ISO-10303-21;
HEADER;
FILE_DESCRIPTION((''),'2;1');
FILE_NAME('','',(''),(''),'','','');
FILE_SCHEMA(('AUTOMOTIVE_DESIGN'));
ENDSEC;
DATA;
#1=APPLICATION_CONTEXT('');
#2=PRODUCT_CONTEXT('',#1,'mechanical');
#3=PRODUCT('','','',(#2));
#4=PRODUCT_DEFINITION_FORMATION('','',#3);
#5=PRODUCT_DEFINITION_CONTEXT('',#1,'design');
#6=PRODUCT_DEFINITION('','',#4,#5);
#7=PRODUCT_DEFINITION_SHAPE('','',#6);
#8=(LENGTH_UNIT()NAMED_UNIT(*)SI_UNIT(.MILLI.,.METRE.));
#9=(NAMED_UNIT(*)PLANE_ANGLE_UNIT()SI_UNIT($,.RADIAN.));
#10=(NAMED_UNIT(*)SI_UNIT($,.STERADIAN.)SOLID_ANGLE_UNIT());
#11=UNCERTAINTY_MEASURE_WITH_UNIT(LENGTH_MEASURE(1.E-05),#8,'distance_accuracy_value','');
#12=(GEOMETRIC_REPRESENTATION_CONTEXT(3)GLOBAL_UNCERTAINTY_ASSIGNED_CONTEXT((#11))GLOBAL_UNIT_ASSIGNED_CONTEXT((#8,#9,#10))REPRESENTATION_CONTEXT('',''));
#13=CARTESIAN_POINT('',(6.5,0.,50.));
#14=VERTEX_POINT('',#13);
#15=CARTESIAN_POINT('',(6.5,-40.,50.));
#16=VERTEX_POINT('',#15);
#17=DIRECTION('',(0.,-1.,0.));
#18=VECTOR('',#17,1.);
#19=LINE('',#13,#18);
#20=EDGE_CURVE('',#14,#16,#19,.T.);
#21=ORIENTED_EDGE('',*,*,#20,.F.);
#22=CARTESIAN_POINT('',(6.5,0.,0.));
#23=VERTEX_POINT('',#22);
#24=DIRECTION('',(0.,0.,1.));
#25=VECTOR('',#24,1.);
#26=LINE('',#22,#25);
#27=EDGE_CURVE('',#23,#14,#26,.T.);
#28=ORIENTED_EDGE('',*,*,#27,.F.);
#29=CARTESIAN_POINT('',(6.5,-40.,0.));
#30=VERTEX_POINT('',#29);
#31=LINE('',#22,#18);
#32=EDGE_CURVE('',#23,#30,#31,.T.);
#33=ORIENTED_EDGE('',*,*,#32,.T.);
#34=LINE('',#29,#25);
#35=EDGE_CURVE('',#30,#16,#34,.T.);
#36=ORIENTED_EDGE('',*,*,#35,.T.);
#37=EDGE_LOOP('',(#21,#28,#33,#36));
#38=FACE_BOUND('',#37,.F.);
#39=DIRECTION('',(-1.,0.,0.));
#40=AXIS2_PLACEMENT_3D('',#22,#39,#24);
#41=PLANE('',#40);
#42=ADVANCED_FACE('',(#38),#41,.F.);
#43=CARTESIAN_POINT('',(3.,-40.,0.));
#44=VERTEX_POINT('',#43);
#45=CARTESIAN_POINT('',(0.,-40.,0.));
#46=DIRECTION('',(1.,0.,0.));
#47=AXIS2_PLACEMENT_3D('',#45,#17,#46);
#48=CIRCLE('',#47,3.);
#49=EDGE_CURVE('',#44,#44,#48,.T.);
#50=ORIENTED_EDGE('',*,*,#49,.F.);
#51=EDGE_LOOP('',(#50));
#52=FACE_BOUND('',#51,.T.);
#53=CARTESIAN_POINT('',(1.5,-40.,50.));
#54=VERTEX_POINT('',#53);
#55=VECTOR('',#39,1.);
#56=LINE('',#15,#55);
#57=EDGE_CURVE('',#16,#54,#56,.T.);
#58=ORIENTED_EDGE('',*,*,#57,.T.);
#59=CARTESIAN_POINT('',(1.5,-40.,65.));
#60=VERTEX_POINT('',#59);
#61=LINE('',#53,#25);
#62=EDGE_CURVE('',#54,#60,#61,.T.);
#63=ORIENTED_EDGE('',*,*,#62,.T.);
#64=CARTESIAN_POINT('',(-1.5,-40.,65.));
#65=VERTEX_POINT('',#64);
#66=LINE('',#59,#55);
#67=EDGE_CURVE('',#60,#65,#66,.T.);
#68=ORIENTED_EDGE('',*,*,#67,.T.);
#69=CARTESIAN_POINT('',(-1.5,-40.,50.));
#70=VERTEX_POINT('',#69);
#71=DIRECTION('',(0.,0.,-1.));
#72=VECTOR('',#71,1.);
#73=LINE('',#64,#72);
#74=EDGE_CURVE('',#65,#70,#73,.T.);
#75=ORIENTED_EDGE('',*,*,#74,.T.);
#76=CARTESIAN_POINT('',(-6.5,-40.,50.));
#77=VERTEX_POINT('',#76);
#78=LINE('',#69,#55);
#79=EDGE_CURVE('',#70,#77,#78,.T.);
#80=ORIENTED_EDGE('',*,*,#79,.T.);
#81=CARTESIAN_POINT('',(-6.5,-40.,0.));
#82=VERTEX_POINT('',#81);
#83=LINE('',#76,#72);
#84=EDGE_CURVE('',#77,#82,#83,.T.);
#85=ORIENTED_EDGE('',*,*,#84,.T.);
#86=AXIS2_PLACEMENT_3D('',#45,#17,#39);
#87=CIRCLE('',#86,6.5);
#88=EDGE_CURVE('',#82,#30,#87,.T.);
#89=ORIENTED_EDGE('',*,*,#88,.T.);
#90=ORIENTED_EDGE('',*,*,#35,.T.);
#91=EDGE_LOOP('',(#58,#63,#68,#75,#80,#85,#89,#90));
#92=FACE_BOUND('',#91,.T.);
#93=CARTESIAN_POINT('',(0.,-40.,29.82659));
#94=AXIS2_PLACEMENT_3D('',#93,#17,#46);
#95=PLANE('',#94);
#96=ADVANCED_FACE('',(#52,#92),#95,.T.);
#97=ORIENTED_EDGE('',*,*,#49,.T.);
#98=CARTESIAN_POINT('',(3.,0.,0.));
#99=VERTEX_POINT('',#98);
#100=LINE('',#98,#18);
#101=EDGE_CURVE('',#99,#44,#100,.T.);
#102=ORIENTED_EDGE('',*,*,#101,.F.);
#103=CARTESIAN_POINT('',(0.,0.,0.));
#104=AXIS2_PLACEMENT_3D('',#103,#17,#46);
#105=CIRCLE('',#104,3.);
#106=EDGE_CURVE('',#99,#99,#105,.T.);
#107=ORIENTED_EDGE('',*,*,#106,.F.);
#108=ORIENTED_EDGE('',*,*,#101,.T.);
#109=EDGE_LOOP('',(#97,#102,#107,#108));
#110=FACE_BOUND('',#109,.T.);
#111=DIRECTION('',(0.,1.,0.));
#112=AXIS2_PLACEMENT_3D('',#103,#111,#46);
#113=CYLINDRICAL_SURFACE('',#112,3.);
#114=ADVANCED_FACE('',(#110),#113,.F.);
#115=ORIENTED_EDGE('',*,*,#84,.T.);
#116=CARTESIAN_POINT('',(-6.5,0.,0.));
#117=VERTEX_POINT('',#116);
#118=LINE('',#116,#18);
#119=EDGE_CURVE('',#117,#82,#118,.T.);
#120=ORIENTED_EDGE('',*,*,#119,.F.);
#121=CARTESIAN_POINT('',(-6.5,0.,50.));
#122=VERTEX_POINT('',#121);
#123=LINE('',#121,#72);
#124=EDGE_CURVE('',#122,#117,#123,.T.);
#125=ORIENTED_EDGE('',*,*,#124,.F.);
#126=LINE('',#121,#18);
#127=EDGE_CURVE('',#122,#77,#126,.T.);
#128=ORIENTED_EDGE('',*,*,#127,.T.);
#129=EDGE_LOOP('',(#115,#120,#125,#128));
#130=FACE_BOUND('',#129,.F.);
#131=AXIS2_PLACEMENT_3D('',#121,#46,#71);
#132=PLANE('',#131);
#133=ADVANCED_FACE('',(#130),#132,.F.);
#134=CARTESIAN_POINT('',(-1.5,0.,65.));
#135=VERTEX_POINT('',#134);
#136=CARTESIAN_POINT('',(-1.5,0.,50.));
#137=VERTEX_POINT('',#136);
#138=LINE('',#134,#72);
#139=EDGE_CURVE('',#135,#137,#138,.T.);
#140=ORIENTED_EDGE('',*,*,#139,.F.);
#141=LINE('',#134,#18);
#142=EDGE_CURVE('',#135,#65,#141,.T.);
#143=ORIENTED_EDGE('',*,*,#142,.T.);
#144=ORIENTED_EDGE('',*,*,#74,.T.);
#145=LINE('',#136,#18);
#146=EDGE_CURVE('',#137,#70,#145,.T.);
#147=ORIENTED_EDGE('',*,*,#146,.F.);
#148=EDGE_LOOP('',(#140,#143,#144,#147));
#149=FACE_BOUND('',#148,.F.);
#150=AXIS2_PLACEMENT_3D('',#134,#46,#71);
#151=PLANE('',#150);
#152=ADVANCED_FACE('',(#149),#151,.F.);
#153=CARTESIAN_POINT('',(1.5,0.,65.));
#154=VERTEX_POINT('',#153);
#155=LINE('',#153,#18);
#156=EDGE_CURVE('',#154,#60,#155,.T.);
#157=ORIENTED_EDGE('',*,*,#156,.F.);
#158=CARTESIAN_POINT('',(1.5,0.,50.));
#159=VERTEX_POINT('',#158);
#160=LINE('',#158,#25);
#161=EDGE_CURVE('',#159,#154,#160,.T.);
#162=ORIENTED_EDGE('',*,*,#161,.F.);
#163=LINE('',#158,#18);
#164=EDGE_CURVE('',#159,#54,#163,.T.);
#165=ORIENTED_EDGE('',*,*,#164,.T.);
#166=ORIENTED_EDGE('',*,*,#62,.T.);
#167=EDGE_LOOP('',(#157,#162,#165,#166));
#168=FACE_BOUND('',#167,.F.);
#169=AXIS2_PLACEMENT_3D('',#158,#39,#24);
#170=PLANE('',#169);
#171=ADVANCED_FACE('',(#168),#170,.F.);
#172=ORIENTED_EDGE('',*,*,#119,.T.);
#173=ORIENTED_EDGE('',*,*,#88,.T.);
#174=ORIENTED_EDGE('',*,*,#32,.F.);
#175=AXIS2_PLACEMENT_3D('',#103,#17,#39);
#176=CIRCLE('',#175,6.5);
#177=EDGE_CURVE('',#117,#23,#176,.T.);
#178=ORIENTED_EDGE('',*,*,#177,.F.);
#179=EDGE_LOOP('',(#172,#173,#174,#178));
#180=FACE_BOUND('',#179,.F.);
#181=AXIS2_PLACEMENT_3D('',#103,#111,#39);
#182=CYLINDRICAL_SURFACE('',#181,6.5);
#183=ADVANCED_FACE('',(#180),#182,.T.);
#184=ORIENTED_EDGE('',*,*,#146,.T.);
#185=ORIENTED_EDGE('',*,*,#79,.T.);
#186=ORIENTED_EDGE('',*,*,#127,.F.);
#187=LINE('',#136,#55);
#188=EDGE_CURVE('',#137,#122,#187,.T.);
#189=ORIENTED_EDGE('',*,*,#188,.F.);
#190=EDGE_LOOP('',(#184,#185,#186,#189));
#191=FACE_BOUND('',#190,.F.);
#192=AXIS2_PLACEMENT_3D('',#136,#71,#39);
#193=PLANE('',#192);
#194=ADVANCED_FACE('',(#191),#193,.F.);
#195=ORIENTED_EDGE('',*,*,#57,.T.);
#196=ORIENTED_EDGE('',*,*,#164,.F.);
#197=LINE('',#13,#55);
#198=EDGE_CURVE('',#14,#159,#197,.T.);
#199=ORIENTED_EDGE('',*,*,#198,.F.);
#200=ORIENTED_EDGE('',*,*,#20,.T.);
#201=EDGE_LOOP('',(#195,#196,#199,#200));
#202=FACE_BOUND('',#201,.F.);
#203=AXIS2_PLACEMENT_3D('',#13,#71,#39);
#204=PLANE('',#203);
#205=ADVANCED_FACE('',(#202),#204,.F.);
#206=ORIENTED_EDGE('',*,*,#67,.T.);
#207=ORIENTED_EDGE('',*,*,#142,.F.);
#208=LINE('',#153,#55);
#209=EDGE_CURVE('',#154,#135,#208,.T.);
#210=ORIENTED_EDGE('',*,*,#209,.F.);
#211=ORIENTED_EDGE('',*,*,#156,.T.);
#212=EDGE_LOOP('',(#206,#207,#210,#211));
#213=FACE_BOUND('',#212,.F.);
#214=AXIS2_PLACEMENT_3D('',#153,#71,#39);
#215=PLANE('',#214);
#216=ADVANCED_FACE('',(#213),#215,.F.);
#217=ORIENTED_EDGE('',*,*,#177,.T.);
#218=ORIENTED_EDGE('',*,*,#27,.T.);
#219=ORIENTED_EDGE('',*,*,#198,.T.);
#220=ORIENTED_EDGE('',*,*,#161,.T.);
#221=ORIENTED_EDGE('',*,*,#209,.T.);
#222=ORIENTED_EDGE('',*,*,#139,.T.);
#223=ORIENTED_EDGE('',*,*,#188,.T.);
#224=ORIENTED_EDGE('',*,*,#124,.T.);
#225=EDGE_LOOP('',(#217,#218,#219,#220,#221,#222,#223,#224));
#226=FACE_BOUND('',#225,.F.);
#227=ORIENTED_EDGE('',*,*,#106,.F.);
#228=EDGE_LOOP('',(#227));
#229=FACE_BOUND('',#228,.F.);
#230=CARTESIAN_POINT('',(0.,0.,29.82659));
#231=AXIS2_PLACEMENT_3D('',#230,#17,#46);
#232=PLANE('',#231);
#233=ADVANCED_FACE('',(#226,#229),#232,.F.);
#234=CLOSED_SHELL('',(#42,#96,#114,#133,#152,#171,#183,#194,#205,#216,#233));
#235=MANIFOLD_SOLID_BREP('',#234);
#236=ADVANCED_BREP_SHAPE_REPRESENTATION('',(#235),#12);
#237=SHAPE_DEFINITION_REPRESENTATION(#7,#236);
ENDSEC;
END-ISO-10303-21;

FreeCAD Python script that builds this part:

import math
import FreeCAD as App
import Part
import Sketcher

V = App.Vector
Q = App.Units.Quantity

doc = App.newDocument("Part")
params = doc.addObject("Spreadsheet::Sheet", "Params")
for row, (alias, value) in enumerate([
    ("sketch1_diameter", "6 mm"),
    ("sketch1_radius", "6.5 mm"),
    ("sketch1_width", "5 mm"),
    ("sketch1_height", "50 mm"),
    ("sketch1_height2", "15 mm"),
    ("pad1_length", "40 mm"),
], start=1):
    params.set(f"A{row}", alias)
    params.set(f"B{row}", "=" + value)
    params.setAlias(f"B{row}", alias)

body = doc.addObject("PartDesign::Body", "Body")

# Sketch on XZ plane
sketch1 = doc.addObject("Sketcher::SketchObject", "Sketch")
body.addObject(sketch1)
sketch1.AttachmentSupport = (doc.XZ_Plane, [""])
sketch1.MapMode = "FlatFace"
sketch1.addGeometry(Part.LineSegment(V(-6.5, 50, 0), V(-6.5, 0, 0)), False)
sketch1.addGeometry(Part.ArcOfCircle(Part.Circle(V(0, 0, 0), V(0, 0, 1), 6.5), math.radians(180), math.radians(360)), False)
sketch1.addGeometry(Part.LineSegment(V(6.5, 0, 0), V(6.5, 50, 0)), False)
sketch1.addGeometry(Part.LineSegment(V(6.5, 50, 0), V(1.5, 50, 0)), False)
sketch1.addGeometry(Part.LineSegment(V(1.5, 50, 0), V(1.5, 65, 0)), False)
sketch1.addGeometry(Part.LineSegment(V(1.5, 65, 0), V(-1.5, 65, 0)), False)
sketch1.addGeometry(Part.LineSegment(V(-1.5, 65, 0), V(-1.5, 50, 0)), False)
sketch1.addGeometry(Part.LineSegment(V(-1.5, 50, 0), V(-6.5, 50, 0)), False)
sketch1.addGeometry(Part.Circle(V(0, 0, 0), V(0, 0, 1), 3), False)
sketch1.addConstraint(Sketcher.Constraint("Tangent", 0, 2, 1, 1))
sketch1.addConstraint(Sketcher.Constraint("Tangent", 1, 2, 2, 1))
sketch1.addConstraint(Sketcher.Constraint("Coincident", 2, 2, 3, 1))
sketch1.addConstraint(Sketcher.Constraint("Coincident", 3, 2, 4, 1))
sketch1.addConstraint(Sketcher.Constraint("Coincident", 4, 2, 5, 1))
sketch1.addConstraint(Sketcher.Constraint("Coincident", 5, 2, 6, 1))
sketch1.addConstraint(Sketcher.Constraint("Coincident", 6, 2, 7, 1))
sketch1.addConstraint(Sketcher.Constraint("Coincident", 7, 2, 0, 1))
sketch1.addConstraint(Sketcher.Constraint("Vertical", 0))
sketch1.addConstraint(Sketcher.Constraint("Vertical", 2))
sketch1.addConstraint(Sketcher.Constraint("Horizontal", 3))
sketch1.addConstraint(Sketcher.Constraint("Vertical", 4))
sketch1.addConstraint(Sketcher.Constraint("Horizontal", 5))
sketch1.addConstraint(Sketcher.Constraint("Vertical", 6))
sketch1.addConstraint(Sketcher.Constraint("Horizontal", 7))
sketch1.addConstraint(Sketcher.Constraint("Coincident", 1, 3, -1, 1))
sketch1.addConstraint(Sketcher.Constraint("Coincident", 8, 3, -1, 1))
sketch1.addConstraint(Sketcher.Constraint("Symmetric", 3, 2, 6, 2, -2))
sketch1.addConstraint(Sketcher.Constraint("Diameter", 8, Q("6 mm")))
sketch1.addConstraint(Sketcher.Constraint("Radius", 1, Q("6.5 mm")))
sketch1.addConstraint(Sketcher.Constraint("DistanceX", 3, 2, 3, 1, Q("5 mm")))
sketch1.addConstraint(Sketcher.Constraint("DistanceY", 0, 2, 0, 1, Q("50 mm")))
sketch1.addConstraint(Sketcher.Constraint("DistanceY", 4, 1, 4, 2, Q("15 mm")))
sketch1.setExpression("Constraints[18]", "Params.sketch1_diameter")
sketch1.setExpression("Constraints[19]", "Params.sketch1_radius")
sketch1.setExpression("Constraints[20]", "Params.sketch1_width")
sketch1.setExpression("Constraints[21]", "Params.sketch1_height")
sketch1.setExpression("Constraints[22]", "Params.sketch1_height2")
pad1 = doc.addObject("PartDesign::Pad", "Pad")
body.addObject(pad1)
pad1.Profile = sketch1
pad1.setExpression("Length", "Params.pad1_length")

doc.recompute()
